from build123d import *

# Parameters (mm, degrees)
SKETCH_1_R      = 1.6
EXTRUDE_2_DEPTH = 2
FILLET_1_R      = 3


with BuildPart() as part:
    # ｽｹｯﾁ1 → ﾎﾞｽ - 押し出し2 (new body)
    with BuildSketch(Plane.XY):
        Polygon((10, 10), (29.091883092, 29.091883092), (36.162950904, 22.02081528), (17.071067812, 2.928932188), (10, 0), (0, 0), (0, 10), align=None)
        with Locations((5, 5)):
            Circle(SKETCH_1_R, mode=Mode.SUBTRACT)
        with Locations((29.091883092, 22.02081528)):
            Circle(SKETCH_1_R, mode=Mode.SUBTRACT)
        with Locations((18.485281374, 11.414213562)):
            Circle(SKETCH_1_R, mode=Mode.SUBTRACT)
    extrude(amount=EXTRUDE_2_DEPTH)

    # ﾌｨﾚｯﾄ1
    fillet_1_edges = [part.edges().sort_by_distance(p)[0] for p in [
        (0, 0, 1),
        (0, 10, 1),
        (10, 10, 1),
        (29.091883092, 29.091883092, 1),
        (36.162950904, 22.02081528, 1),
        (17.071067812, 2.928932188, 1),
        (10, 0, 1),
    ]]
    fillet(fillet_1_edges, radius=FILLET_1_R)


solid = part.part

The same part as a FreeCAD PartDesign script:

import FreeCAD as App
import Part
import Sketcher

V = App.Vector
Q = App.Units.Quantity


def edges_at(feature, points):
    """Names of the edges that pass closest to the given points."""
    edges = feature.Shape.Edges
    near = lambda p: min(range(len(edges)), key=lambda i: edges[i].distToShape(Part.Vertex(*p))[0])
    return sorted({f"Edge{near(p) + 1}" for p in points})


def add_polygon(sketch, points):
    """Adds a closed chain of lines whose ends are joined by coincident constraints."""
    first, n = sketch.GeometryCount, len(points)
    for a, b in zip(points, points[1:] + points[:1]):
        sketch.addGeometry(Part.LineSegment(App.Vector(*a, 0), App.Vector(*b, 0)), False)
    for i in range(n):
        sketch.addConstraint(Sketcher.Constraint("Coincident", first + i, 2, first + (i + 1) % n, 1))

doc = App.newDocument("Part")
params = doc.addObject("Spreadsheet::Sheet", "Params")
for row, (alias, value) in enumerate([
    ("sketch1_diameter", "3.2 mm"),
    ("sketch1_width", "10 mm"),
    ("sketch1_length", "27 mm"),
    ("sketch1_length2", "10 mm"),
    ("pad1_length", "2 mm"),
    ("fillet_radius", "3 mm"),
], start=1):
    params.set(f"A{row}", alias)
    params.set(f"B{row}", "=" + value)
    params.setAlias(f"B{row}", alias)

body = doc.addObject("PartDesign::Body", "Body")

sketch1 = body.newObject("Sketcher::SketchObject", "Sketch")
sketch1.AttachmentSupport = (doc.getObject("XY_Plane"), [""])
sketch1.MapMode = "FlatFace"
add_polygon(sketch1, [(29.1, 29.1), (10, 10), (0, 10), (0, 0), (10, 0), (17.1, 2.9), (36.2, 22)])
sketch1.addGeometry(Part.Circle(V(18.5, 11.4, 0), V(0, 0, 1), 1.6), False)
sketch1.addGeometry(Part.Circle(V(5, 5, 0), V(0, 0, 1), 1.6), False)
sketch1.addGeometry(Part.Circle(V(29.1, 22, 0), V(0, 0, 1), 1.6), False)
sketch1.addConstraint(Sketcher.Constraint("Horizontal", 1))
sketch1.addConstraint(Sketcher.Constraint("Vertical", 2))
sketch1.addConstraint(Sketcher.Constraint("Horizontal", 3))
sketch1.addConstraint(Sketcher.Constraint("Coincident", 2, 2, -1, 1))
sketch1.addConstraint(Sketcher.Constraint("Equal", 7, 8))
sketch1.addConstraint(Sketcher.Constraint("Equal", 8, 9))
sketch1.addConstraint(Sketcher.Constraint("Parallel", 0, 5))
sketch1.addConstraint(Sketcher.Constraint("Perpendicular", 5, 6))
sketch1.addConstraint(Sketcher.Constraint("Horizontal", 9, 3, 5, 2))
sketch1.addConstraint(Sketcher.Constraint("Vertical", 0, 2, 3, 2))
sketch1.addConstraint(Sketcher.Constraint("Vertical", 9, 3, 6, 2))
sketch1.addConstraint(Sketcher.Constraint("Equal", 3, 2))
sketch1.addConstraint(Sketcher.Constraint("Equal", 0, 5))
sketch1.addConstraint(Sketcher.Constraint("Diameter", 7, 3.2))
sketch1.addConstraint(Sketcher.Constraint("DistanceX", 1, 2, 1, 1, 10.0))
sketch1.addConstraint(Sketcher.Constraint("Angle", 0, Q("-135 deg")))
sketch1.addConstraint(Sketcher.Constraint("Distance", 0, 27.0))
sketch1.addConstraint(Sketcher.Constraint("Distance", 6, 10.0))
sketch1.addConstraint(Sketcher.Constraint("DistanceX", -1, 1, 8, 3, 5.0))
sketch1.addConstraint(Sketcher.Constraint("DistanceY", -1, 1, 8, 3, 5.0))
sketch1.addConstraint(Sketcher.Constraint("DistanceX", 7, 3, 9, 3, 10.606602))
sketch1.addConstraint(Sketcher.Constraint("DistanceY", 7, 3, 9, 3, 10.606602))
sketch1.setExpression("Constraints[20]", "Params.sketch1_diameter")
sketch1.setExpression("Constraints[21]", "Params.sketch1_width")
sketch1.setExpression("Constraints[23]", "Params.sketch1_length")
sketch1.setExpression("Constraints[24]", "Params.sketch1_length2")
pad1 = body.newObject("PartDesign::Pad", "Pad")
pad1.Profile = sketch1
pad1.setExpression("Length", "Params.pad1_length")
doc.recompute()

fillet = body.newObject("PartDesign::Fillet", "Fillet")
fillet.Base = (pad1, edges_at(pad1, [
    (0, 0, 1),
    (0, 10, 1),
    (10, 10, 1),
    (29.092, 29.092, 1),
    (36.163, 22.021, 1),
    (17.071, 2.929, 1),
    (10, 0, 1),
]))
fillet.setExpression("Radius", "Params.fillet_radius")

doc.recompute()
